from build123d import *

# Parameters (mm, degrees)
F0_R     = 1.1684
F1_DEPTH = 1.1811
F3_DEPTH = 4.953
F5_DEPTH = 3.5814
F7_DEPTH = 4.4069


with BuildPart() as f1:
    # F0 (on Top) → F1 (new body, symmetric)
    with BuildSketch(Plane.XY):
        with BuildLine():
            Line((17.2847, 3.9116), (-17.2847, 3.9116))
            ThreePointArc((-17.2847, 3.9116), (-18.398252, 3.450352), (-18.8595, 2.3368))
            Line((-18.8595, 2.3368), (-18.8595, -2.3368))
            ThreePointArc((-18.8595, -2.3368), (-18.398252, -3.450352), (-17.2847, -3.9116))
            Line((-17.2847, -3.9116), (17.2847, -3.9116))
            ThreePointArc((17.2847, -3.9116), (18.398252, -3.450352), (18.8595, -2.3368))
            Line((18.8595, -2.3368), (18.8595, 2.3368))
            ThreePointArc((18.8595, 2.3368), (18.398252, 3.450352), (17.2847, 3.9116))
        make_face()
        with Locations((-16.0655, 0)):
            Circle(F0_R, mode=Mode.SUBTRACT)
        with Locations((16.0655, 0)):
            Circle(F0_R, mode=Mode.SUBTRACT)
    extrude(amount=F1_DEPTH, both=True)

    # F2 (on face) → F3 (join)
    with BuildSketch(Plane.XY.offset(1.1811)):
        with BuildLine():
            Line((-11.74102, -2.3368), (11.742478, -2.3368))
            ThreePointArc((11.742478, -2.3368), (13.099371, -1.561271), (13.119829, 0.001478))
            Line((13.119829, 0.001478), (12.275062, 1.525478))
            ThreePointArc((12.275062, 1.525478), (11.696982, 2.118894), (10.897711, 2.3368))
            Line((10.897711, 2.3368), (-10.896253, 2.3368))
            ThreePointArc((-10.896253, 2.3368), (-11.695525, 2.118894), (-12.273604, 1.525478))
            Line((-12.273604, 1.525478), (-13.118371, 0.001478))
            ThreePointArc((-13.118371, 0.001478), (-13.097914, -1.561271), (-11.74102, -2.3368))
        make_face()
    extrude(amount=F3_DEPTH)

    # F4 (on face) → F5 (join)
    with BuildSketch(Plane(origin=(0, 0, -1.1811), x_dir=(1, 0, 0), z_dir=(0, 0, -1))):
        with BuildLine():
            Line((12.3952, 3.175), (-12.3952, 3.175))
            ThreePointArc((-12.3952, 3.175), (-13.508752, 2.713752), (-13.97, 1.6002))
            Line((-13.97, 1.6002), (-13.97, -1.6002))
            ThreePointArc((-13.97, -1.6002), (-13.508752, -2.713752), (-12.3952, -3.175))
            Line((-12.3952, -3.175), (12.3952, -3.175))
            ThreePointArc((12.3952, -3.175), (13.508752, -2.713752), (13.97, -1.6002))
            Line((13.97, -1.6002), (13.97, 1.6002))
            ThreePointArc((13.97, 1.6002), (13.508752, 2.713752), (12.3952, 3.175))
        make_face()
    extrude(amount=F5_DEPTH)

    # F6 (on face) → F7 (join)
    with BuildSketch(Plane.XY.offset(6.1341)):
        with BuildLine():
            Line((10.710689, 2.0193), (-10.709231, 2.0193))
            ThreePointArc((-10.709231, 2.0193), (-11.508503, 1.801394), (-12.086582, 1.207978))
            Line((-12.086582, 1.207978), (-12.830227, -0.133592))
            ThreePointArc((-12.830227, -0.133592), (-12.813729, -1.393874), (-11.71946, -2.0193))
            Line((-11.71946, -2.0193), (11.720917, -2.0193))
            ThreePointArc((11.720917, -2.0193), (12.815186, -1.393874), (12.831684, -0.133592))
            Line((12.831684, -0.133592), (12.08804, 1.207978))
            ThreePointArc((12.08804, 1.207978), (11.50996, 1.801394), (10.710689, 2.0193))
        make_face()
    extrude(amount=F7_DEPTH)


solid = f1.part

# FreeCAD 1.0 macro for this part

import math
import FreeCAD as App
import Part
import Sketcher
from FreeCAD import Vector
Q = App.Units.Quantity

doc = App.newDocument("Part")
params = doc.addObject("Spreadsheet::Sheet", "Params")
for row, (alias, value) in enumerate([
    ("sketch1_diameter", "0.092 in"),
    ("sketch1_radius", "0.062 in"),
    ("sketch1_width", "1.361 in"),
    ("sketch1_height", "0.184 in"),
    ("pad1_length", "0.093 in"),
    ("sketch2_radius", "0.062 in"),
    ("pad2_length", "0.195 in"),
    ("sketch3_radius", "0.062 in"),
    ("sketch3_width", "0.976 in"),
    ("sketch3_height", "0.126 in"),
    ("pad3_length", "0.141 in"),
    ("sketch4_radius", "0.05 in"),
    ("sketch4_radius2", "0.0619998 in"),
    ("sketch4_radius3", "0.0619999 in"),
    ("pad4_length", "0.1735 in"),
], start=1):
    params.set(f"A{row}", alias)
    params.set(f"B{row}", "=" + value)
    params.setAlias(f"B{row}", alias)

body = doc.addObject("PartDesign::Body", "Body")

# Sketch on XY plane
sketch1 = body.newObject("Sketcher::SketchObject", "Sketch")
sketch1.AttachmentSupport = (doc.getObject("XY_Plane"), [""])
sketch1.MapMode = "FlatFace"
sketch1.addGeometry(Part.LineSegment(Vector(17.3, 3.9, 0), Vector(-17.3, 3.9, 0)), False)
sketch1.addGeometry(Part.ArcOfCircle(Part.Circle(Vector(-17.3, 2.3, 0), Vector(0, 0, 1), 1.6), math.radians(90), math.radians(180)), False)
sketch1.addGeometry(Part.LineSegment(Vector(-18.9, 2.3, 0), Vector(-18.9, -2.3, 0)), False)
sketch1.addGeometry(Part.ArcOfCircle(Part.Circle(Vector(-17.3, -2.3, 0), Vector(0, 0, 1), 1.6), math.radians(180), math.radians(270)), False)
sketch1.addGeometry(Part.LineSegment(Vector(-17.3, -3.9, 0), Vector(17.3, -3.9, 0)), False)
sketch1.addGeometry(Part.ArcOfCircle(Part.Circle(Vector(17.3, -2.3, 0), Vector(0, 0, 1), 1.6), math.radians(-90), math.radians(0)), False)
sketch1.addGeometry(Part.LineSegment(Vector(18.9, -2.3, 0), Vector(18.9, 2.3, 0)), False)
sketch1.addGeometry(Part.ArcOfCircle(Part.Circle(Vector(17.3, 2.3, 0), Vector(0, 0, 1), 1.6), math.radians(0), math.radians(90)), False)
sketch1.addGeometry(Part.Circle(Vector(-16.1, 0, 0), Vector(0, 0, 1), 1.2), False)
sketch1.addGeometry(Part.Circle(Vector(16.1, 0, 0), Vector(0, 0, 1), 1.2), False)
sketch1.addConstraint(Sketcher.Constraint("Tangent", 0, 2, 1, 1))
sketch1.addConstraint(Sketcher.Constraint("Tangent", 1, 2, 2, 1))
sketch1.addConstraint(Sketcher.Constraint("Tangent", 2, 2, 3, 1))
sketch1.addConstraint(Sketcher.Constraint("Tangent", 3, 2, 4, 1))
sketch1.addConstraint(Sketcher.Constraint("Tangent", 4, 2, 5, 1))
sketch1.addConstraint(Sketcher.Constraint("Tangent", 5, 2, 6, 1))
sketch1.addConstraint(Sketcher.Constraint("Tangent", 6, 2, 7, 1))
sketch1.addConstraint(Sketcher.Constraint("Tangent", 7, 2, 0, 1))
sketch1.addConstraint(Sketcher.Constraint("Horizontal", 0))
sketch1.addConstraint(Sketcher.Constraint("Vertical", 2))
sketch1.addConstraint(Sketcher.Constraint("Horizontal", 4))
sketch1.addConstraint(Sketcher.Constraint("Vertical", 6))
sketch1.addConstraint(Sketcher.Constraint("Equal", 1, 3))
sketch1.addConstraint(Sketcher.Constraint("Equal", 3, 5))
sketch1.addConstraint(Sketcher.Constraint("Equal", 5, 7))
sketch1.addConstraint(Sketcher.Constraint("Equal", 8, 9))
sketch1.addConstraint(Sketcher.Constraint("Symmetric", 1, 3, 5, 3, -1, 1))
sketch1.addConstraint(Sketcher.Constraint("Symmetric", 8, 3, 9, 3, -1, 1))
sketch1.addConstraint(Sketcher.Constraint("PointOnObject", 8, 3, -1))
sketch1.addConstraint(Sketcher.Constraint("Diameter", 8, Q("0.092 in")))
sketch1.addConstraint(Sketcher.Constraint("Radius", 1, Q("0.062 in")))
sketch1.addConstraint(Sketcher.Constraint("DistanceX", 0, 2, 0, 1, Q("1.361 in")))
sketch1.addConstraint(Sketcher.Constraint("DistanceY", 2, 2, 2, 1, Q("0.184 in")))
sketch1.addConstraint(Sketcher.Constraint("DistanceX", 1, 2, 8, 3, Q("0.11 in")))
sketch1.setExpression("Constraints[19]", "Params.sketch1_diameter")
sketch1.setExpression("Constraints[20]", "Params.sketch1_radius")
sketch1.setExpression("Constraints[21]", "Params.sketch1_width")
sketch1.setExpression("Constraints[22]", "Params.sketch1_height")
pad1 = body.newObject("PartDesign::Pad", "Pad")
pad1.Profile = sketch1
pad1.setExpression("Length", "Params.pad1_length")
pad1.Midplane = True

# Sketch on XY plane
sketch2 = body.newObject("Sketcher::SketchObject", "Sketch001")
sketch2.AttachmentSupport = (doc.getObject("XY_Plane"), [""])
sketch2.MapMode = "FlatFace"
sketch2.AttachmentOffset = App.Placement(Vector(0, 0, 0.0465 * 25.4), App.Rotation())
sketch2.addGeometry(Part.LineSegment(Vector(-11.7, -2.3, 0), Vector(11.7, -2.3, 0)), False)
sketch2.addGeometry(Part.ArcOfCircle(Part.Circle(Vector(11.7, -0.8, 0), Vector(0, 0, 1), 1.6), math.radians(-90), math.radians(29)), False)
sketch2.addGeometry(Part.LineSegment(Vector(13.1, 0, 0), Vector(12.3, 1.5, 0)), False)
sketch2.addGeometry(Part.ArcOfCircle(Part.Circle(Vector(10.9, 0.8, 0), Vector(0, 0, 1), 1.6), math.radians(29), math.radians(90)), False)
sketch2.addGeometry(Part.LineSegment(Vector(10.9, 2.3, 0), Vector(-10.9, 2.3, 0)), False)
sketch2.addGeometry(Part.ArcOfCircle(Part.Circle(Vector(-10.9, 0.8, 0), Vector(0, 0, 1), 1.6), math.radians(90), math.radians(151)), False)
sketch2.addGeometry(Part.LineSegment(Vector(-12.3, 1.5, 0), Vector(-13.1, 0, 0)), False)
sketch2.addGeometry(Part.ArcOfCircle(Part.Circle(Vector(-11.7, -0.8, 0), Vector(0, 0, 1), 1.6), math.radians(151), math.radians(270)), False)
sketch2.addConstraint(Sketcher.Constraint("Tangent", 0, 2, 1, 1))
sketch2.addConstraint(Sketcher.Constraint("Tangent", 1, 2, 2, 1))
sketch2.addConstraint(Sketcher.Constraint("Tangent", 2, 2, 3, 1))
sketch2.addConstraint(Sketcher.Constraint("Tangent", 3, 2, 4, 1))
sketch2.addConstraint(Sketcher.Constraint("Tangent", 4, 2, 5, 1))
sketch2.addConstraint(Sketcher.Constraint("Tangent", 5, 2, 6, 1))
sketch2.addConstraint(Sketcher.Constraint("Tangent", 6, 2, 7, 1))
sketch2.addConstraint(Sketcher.Constraint("Tangent", 7, 2, 0, 1))
sketch2.addConstraint(Sketcher.Constraint("Horizontal", 0))
sketch2.addConstraint(Sketcher.Constraint("Horizontal", 4))
sketch2.addConstraint(Sketcher.Constraint("Equal", 3, 7))
sketch2.addConstraint(Sketcher.Constraint("Horizontal", 1, 3, 7, 3))
sketch2.addConstraint(Sketcher.Constraint("Horizontal", 2, 2, 5, 2))
sketch2.addConstraint(Sketcher.Constraint("Horizontal", 1, 2, 6, 2))
sketch2.addConstraint(Sketcher.Constraint("Angle", 2, Q("119 deg")))
sketch2.addConstraint(Sketcher.Constraint("Radius", 1, Q("0.062 in")))
sketch2.addConstraint(Sketcher.Constraint("DistanceY", 1, 3, -1, 1, Q("0.03 in")))
sketch2.addConstraint(Sketcher.Constraint("DistanceY", -1, 1, 3, 3, Q("0.0300001 in")))
sketch2.addConstraint(Sketcher.Constraint("DistanceX", 0, 1, 0, 2, 23.483498))
sketch2.addConstraint(Sketcher.Constraint("DistanceX", -1, 1, 3, 3, 10.897712))
sketch2.setExpression("Constraints[15]", "Params.sketch2_radius")
pad2 = body.newObject("PartDesign::Pad", "Pad001")
pad2.Profile = sketch2
pad2.setExpression("Length", "Params.pad2_length")

# Sketch on XY plane
sketch3 = body.newObject("Sketcher::SketchObject", "Sketch002")
sketch3.AttachmentSupport = (doc.getObject("XY_Plane"), [""])
sketch3.MapMode = "FlatFace"
sketch3.AttachmentOffset = App.Placement(Vector(0, 0, -0.0465 * 25.4), App.Rotation())
sketch3.addGeometry(Part.LineSegment(Vector(12.4, -3.2, 0), Vector(-12.4, -3.2, 0)), False)
sketch3.addGeometry(Part.ArcOfCircle(Part.Circle(Vector(-12.4, -1.6, 0), Vector(0, 0, 1), 1.6), math.radians(180), math.radians(270)), False)
sketch3.addGeometry(Part.LineSegment(Vector(-14, -1.6, 0), Vector(-14, 1.6, 0)), False)
sketch3.addGeometry(Part.ArcOfCircle(Part.Circle(Vector(-12.4, 1.6, 0), Vector(0, 0, 1), 1.6), math.radians(90), math.radians(180)), False)
sketch3.addGeometry(Part.LineSegment(Vector(-12.4, 3.2, 0), Vector(12.4, 3.2, 0)), False)
sketch3.addGeometry(Part.ArcOfCircle(Part.Circle(Vector(12.4, 1.6, 0), Vector(0, 0, 1), 1.6), math.radians(0), math.radians(90)), False)
sketch3.addGeometry(Part.LineSegment(Vector(14, 1.6, 0), Vector(14, -1.6, 0)), False)
sketch3.addGeometry(Part.ArcOfCircle(Part.Circle(Vector(12.4, -1.6, 0), Vector(0, 0, 1), 1.6), math.radians(-90), math.radians(0)), False)
sketch3.addConstraint(Sketcher.Constraint("Tangent", 0, 2, 1, 2))
sketch3.addConstraint(Sketcher.Constraint("Tangent", 1, 1, 2, 1))
sketch3.addConstraint(Sketcher.Constraint("Tangent", 2, 2, 3, 2))
sketch3.addConstraint(Sketcher.Constraint("Tangent", 3, 1, 4, 1))
sketch3.addConstraint(Sketcher.Constraint("Tangent", 4, 2, 5, 2))
sketch3.addConstraint(Sketcher.Constraint("Tangent", 5, 1, 6, 1))
sketch3.addConstraint(Sketcher.Constraint("Tangent", 6, 2, 7, 2))
sketch3.addConstraint(Sketcher.Constraint("Tangent", 7, 1, 0, 1))
sketch3.addConstraint(Sketcher.Constraint("Horizontal", 0))
sketch3.addConstraint(Sketcher.Constraint("Vertical", 2))
sketch3.addConstraint(Sketcher.Constraint("Horizontal", 4))
sketch3.addConstraint(Sketcher.Constraint("Vertical", 6))
sketch3.addConstraint(Sketcher.Constraint("Equal", 1, 3))
sketch3.addConstraint(Sketcher.Constraint("Equal", 3, 5))
sketch3.addConstraint(Sketcher.Constraint("Equal", 5, 7))
sketch3.addConstraint(Sketcher.Constraint("Symmetric", 1, 3, 5, 3, -1, 1))
sketch3.addConstraint(Sketcher.Constraint("Radius", 1, Q("0.062 in")))
sketch3.addConstraint(Sketcher.Constraint("DistanceX", 0, 2, 0, 1, Q("0.976 in")))
sketch3.addConstraint(Sketcher.Constraint("DistanceY", 2, 1, 2, 2, Q("0.126 in")))
sketch3.setExpression("Constraints[16]", "Params.sketch3_radius")
sketch3.setExpression("Constraints[17]", "Params.sketch3_width")
sketch3.setExpression("Constraints[18]", "Params.sketch3_height")
pad3 = body.newObject("PartDesign::Pad", "Pad002")
pad3.Profile = sketch3
pad3.setExpression("Length", "Params.pad3_length")
pad3.Reversed = True

# Sketch on XY plane
sketch4 = body.newObject("Sketcher::SketchObject", "Sketch003")
sketch4.AttachmentSupport = (doc.getObject("XY_Plane"), [""])
sketch4.MapMode = "FlatFace"
sketch4.AttachmentOffset = App.Placement(Vector(0, 0, 0.2415 * 25.4), App.Rotation())
sketch4.addGeometry(Part.LineSegment(Vector(10.7, 2, 0), Vector(-10.7, 2, 0)), False)
sketch4.addGeometry(Part.ArcOfCircle(Part.Circle(Vector(-10.7, 0.4, 0), Vector(0, 0, 1), 1.6), math.radians(90), math.radians(151)), False)
sketch4.addGeometry(Part.LineSegment(Vector(-12.1, 1.2, 0), Vector(-12.8, -0.1, 0)), False)
sketch4.addGeometry(Part.ArcOfCircle(Part.Circle(Vector(-11.7, -0.7, 0), Vector(0, 0, 1), 1.3), math.radians(151), math.radians(270)), False)
sketch4.addGeometry(Part.LineSegment(Vector(-11.7, -2, 0), Vector(11.7, -2, 0)), False)
sketch4.addGeometry(Part.ArcOfCircle(Part.Circle(Vector(11.7, -0.7, 0), Vector(0, 0, 1), 1.3), math.radians(-90), math.radians(29)), False)
sketch4.addGeometry(Part.LineSegment(Vector(12.8, -0.1, 0), Vector(12.1, 1.2, 0)), False)
sketch4.addGeometry(Part.ArcOfCircle(Part.Circle(Vector(10.7, 0.4, 0), Vector(0, 0, 1), 1.6), math.radians(29), math.radians(90)), False)
sketch4.addConstraint(Sketcher.Constraint("Tangent", 0, 2, 1, 1))
sketch4.addConstraint(Sketcher.Constraint("Coincident", 1, 2, 2, 1))
sketch4.addConstraint(Sketcher.Constraint("Tangent", 2, 2, 3, 1))
sketch4.addConstraint(Sketcher.Constraint("Tangent", 3, 2, 4, 1))
sketch4.addConstraint(Sketcher.Constraint("Tangent", 4, 2, 5, 1))
sketch4.addConstraint(Sketcher.Constraint("Tangent", 5, 2, 6, 1))
sketch4.addConstraint(Sketcher.Constraint("Tangent", 6, 2, 7, 1))
sketch4.addConstraint(Sketcher.Constraint("Tangent", 7, 2, 0, 1))
sketch4.addConstraint(Sketcher.Constraint("Horizontal", 0))
sketch4.addConstraint(Sketcher.Constraint("Horizontal", 4))
sketch4.addConstraint(Sketcher.Constraint("Equal", 3, 5))
sketch4.addConstraint(Sketcher.Constraint("Horizontal", 2, 2, 5, 2))
sketch4.addConstraint(Sketcher.Constraint("Horizontal", 1, 2, 6, 2))
sketch4.addConstraint(Sketcher.Constraint("Radius", 3, Q("0.05 in")))
sketch4.addConstraint(Sketcher.Constraint("Angle", 2, Q("-119.00002 deg")))
sketch4.addConstraint(Sketcher.Constraint("Radius", 1, Q("0.0619998 in")))
sketch4.addConstraint(Sketcher.Constraint("Radius", 7, Q("0.0619999 in")))
sketch4.addConstraint(Sketcher.Constraint("DistanceY", 3, 3, 1, 3, Q("0.0470002 in")))
sketch4.addConstraint(Sketcher.Constraint("DistanceY", -1, 1, 1, 3, Q("0.0175002 in")))
sketch4.addConstraint(Sketcher.Constraint("DistanceX", 0, 2, 0, 1, 21.41992))
sketch4.addConstraint(Sketcher.Constraint("DistanceX", 3, 3, -1, 1, 11.71946))
sketch4.setExpression("Constraints[13]", "Params.sketch4_radius")
sketch4.setExpression("Constraints[15]", "Params.sketch4_radius2")
sketch4.setExpression("Constraints[16]", "Params.sketch4_radius3")
pad4 = body.newObject("PartDesign::Pad", "Pad003")
pad4.Profile = sketch4
pad4.setExpression("Length", "Params.pad4_length")

doc.recompute()
